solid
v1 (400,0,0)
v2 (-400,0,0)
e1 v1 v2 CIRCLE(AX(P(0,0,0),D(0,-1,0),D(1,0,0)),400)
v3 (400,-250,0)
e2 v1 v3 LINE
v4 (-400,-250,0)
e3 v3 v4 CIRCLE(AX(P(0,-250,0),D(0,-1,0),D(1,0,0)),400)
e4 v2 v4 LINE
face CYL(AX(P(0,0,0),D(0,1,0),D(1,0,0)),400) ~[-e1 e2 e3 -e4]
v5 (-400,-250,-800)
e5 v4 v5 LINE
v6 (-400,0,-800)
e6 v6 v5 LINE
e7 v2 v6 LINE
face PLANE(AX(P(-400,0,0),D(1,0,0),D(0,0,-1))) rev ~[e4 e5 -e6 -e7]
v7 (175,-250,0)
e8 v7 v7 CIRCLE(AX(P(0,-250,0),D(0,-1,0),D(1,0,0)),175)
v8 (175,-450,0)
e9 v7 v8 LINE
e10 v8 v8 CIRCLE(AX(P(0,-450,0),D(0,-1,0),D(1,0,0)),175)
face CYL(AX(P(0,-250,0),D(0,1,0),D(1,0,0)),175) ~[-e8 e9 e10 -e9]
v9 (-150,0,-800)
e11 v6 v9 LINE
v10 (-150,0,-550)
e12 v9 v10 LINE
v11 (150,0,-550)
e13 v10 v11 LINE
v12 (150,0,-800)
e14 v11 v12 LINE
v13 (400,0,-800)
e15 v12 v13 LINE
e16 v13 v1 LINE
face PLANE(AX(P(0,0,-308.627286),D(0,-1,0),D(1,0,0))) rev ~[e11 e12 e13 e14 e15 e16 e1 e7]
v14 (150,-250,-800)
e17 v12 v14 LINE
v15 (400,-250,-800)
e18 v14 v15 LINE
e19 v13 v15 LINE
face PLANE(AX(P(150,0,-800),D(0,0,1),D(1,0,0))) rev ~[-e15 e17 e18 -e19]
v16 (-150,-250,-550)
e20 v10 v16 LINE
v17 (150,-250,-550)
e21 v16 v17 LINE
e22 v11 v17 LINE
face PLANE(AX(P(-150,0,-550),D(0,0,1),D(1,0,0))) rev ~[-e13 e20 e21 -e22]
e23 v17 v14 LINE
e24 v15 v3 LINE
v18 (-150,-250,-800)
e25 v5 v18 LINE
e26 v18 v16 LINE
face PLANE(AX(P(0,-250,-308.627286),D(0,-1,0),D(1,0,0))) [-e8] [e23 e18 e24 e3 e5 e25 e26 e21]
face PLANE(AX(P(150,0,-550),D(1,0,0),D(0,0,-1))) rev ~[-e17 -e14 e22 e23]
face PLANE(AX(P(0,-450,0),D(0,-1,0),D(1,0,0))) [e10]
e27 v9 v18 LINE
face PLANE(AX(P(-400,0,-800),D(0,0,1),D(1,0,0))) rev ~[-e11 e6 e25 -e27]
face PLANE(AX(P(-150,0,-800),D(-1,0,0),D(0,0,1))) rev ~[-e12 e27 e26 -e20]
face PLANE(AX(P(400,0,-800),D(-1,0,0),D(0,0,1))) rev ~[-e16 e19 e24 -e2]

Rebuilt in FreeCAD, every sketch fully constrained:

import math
import FreeCAD as App
import Part
import Sketcher
from FreeCAD import Vector

doc = App.newDocument("Part")
body = doc.addObject("PartDesign::Body", "Body")

# Sketch on XZ plane
sketch1 = body.newObject("Sketcher::SketchObject", "Sketch")
sketch1.AttachmentSupport = (doc.getObject("XZ_Plane"), [""])
sketch1.MapMode = "FlatFace"
sketch1.addGeometry([
    Part.LineSegment(Vector(400, -800, 0), Vector(400, 0, 0)),  # 0
    Part.ArcOfCircle(Part.Circle(Vector(0, 0, 0), Vector(0, 0, 1), 400), math.radians(0), math.radians(180)),  # 1
    Part.LineSegment(Vector(-400, 0, 0), Vector(-400, -800, 0)),  # 2
    Part.LineSegment(Vector(-400, -800, 0), Vector(-150, -800, 0)),  # 3
    Part.LineSegment(Vector(-150, -800, 0), Vector(-150, -550, 0)),  # 4
    Part.LineSegment(Vector(-150, -550, 0), Vector(150, -550, 0)),  # 5
    Part.LineSegment(Vector(150, -550, 0), Vector(150, -800, 0)),  # 6
    Part.LineSegment(Vector(150, -800, 0), Vector(400, -800, 0)),  # 7
], False)
sketch1.addConstraint([
    Sketcher.Constraint("Tangent", 0, 2, 1, 1),
    Sketcher.Constraint("Tangent", 1, 2, 2, 1),
    Sketcher.Constraint("Coincident", 2, 2, 3, 1),
    Sketcher.Constraint("Coincident", 3, 2, 4, 1),
    Sketcher.Constraint("Coincident", 4, 2, 5, 1),
    Sketcher.Constraint("Coincident", 5, 2, 6, 1),
    Sketcher.Constraint("Coincident", 6, 2, 7, 1),
    Sketcher.Constraint("Coincident", 7, 2, 0, 1),
    Sketcher.Constraint("Vertical", 0),
    Sketcher.Constraint("Vertical", 2),
    Sketcher.Constraint("Horizontal", 3),
    Sketcher.Constraint("Vertical", 4),
    Sketcher.Constraint("Horizontal", 5),
    Sketcher.Constraint("Vertical", 6),
    Sketcher.Constraint("Horizontal", 7),
    Sketcher.Constraint("Coincident", 1, 3, -1, 1),
    Sketcher.Constraint("Symmetric", 3, 2, 6, 2, -2),
    Sketcher.Constraint("Equal", 7, 4),
    Sketcher.Constraint("Radius", 1, 400.0),
    Sketcher.Constraint("DistanceX", 3, 1, 3, 2, 250.0),
    Sketcher.Constraint("DistanceY", 0, 1, 0, 2, 800.0),
])
pad1 = body.newObject("PartDesign::Pad", "Pad")
pad1.Profile = sketch1
pad1.Length = 250

# Sketch on XZ plane
sketch2 = body.newObject("Sketcher::SketchObject", "Sketch001")
sketch2.AttachmentSupport = (doc.getObject("XZ_Plane"), [""])
sketch2.MapMode = "FlatFace"
sketch2.AttachmentOffset = App.Placement(Vector(0, 0, 250), App.Rotation())
sketch2.addGeometry(Part.Circle(Vector(0, 0, 0), Vector(0, 0, 1), 175), False)
sketch2.addConstraint([
    Sketcher.Constraint("Coincident", 0, 3, -1, 1),
    Sketcher.Constraint("Diameter", 0, 350.0),
])
pad2 = body.newObject("PartDesign::Pad", "Pad001")
pad2.Profile = sketch2
pad2.Length = 200

doc.recompute()
